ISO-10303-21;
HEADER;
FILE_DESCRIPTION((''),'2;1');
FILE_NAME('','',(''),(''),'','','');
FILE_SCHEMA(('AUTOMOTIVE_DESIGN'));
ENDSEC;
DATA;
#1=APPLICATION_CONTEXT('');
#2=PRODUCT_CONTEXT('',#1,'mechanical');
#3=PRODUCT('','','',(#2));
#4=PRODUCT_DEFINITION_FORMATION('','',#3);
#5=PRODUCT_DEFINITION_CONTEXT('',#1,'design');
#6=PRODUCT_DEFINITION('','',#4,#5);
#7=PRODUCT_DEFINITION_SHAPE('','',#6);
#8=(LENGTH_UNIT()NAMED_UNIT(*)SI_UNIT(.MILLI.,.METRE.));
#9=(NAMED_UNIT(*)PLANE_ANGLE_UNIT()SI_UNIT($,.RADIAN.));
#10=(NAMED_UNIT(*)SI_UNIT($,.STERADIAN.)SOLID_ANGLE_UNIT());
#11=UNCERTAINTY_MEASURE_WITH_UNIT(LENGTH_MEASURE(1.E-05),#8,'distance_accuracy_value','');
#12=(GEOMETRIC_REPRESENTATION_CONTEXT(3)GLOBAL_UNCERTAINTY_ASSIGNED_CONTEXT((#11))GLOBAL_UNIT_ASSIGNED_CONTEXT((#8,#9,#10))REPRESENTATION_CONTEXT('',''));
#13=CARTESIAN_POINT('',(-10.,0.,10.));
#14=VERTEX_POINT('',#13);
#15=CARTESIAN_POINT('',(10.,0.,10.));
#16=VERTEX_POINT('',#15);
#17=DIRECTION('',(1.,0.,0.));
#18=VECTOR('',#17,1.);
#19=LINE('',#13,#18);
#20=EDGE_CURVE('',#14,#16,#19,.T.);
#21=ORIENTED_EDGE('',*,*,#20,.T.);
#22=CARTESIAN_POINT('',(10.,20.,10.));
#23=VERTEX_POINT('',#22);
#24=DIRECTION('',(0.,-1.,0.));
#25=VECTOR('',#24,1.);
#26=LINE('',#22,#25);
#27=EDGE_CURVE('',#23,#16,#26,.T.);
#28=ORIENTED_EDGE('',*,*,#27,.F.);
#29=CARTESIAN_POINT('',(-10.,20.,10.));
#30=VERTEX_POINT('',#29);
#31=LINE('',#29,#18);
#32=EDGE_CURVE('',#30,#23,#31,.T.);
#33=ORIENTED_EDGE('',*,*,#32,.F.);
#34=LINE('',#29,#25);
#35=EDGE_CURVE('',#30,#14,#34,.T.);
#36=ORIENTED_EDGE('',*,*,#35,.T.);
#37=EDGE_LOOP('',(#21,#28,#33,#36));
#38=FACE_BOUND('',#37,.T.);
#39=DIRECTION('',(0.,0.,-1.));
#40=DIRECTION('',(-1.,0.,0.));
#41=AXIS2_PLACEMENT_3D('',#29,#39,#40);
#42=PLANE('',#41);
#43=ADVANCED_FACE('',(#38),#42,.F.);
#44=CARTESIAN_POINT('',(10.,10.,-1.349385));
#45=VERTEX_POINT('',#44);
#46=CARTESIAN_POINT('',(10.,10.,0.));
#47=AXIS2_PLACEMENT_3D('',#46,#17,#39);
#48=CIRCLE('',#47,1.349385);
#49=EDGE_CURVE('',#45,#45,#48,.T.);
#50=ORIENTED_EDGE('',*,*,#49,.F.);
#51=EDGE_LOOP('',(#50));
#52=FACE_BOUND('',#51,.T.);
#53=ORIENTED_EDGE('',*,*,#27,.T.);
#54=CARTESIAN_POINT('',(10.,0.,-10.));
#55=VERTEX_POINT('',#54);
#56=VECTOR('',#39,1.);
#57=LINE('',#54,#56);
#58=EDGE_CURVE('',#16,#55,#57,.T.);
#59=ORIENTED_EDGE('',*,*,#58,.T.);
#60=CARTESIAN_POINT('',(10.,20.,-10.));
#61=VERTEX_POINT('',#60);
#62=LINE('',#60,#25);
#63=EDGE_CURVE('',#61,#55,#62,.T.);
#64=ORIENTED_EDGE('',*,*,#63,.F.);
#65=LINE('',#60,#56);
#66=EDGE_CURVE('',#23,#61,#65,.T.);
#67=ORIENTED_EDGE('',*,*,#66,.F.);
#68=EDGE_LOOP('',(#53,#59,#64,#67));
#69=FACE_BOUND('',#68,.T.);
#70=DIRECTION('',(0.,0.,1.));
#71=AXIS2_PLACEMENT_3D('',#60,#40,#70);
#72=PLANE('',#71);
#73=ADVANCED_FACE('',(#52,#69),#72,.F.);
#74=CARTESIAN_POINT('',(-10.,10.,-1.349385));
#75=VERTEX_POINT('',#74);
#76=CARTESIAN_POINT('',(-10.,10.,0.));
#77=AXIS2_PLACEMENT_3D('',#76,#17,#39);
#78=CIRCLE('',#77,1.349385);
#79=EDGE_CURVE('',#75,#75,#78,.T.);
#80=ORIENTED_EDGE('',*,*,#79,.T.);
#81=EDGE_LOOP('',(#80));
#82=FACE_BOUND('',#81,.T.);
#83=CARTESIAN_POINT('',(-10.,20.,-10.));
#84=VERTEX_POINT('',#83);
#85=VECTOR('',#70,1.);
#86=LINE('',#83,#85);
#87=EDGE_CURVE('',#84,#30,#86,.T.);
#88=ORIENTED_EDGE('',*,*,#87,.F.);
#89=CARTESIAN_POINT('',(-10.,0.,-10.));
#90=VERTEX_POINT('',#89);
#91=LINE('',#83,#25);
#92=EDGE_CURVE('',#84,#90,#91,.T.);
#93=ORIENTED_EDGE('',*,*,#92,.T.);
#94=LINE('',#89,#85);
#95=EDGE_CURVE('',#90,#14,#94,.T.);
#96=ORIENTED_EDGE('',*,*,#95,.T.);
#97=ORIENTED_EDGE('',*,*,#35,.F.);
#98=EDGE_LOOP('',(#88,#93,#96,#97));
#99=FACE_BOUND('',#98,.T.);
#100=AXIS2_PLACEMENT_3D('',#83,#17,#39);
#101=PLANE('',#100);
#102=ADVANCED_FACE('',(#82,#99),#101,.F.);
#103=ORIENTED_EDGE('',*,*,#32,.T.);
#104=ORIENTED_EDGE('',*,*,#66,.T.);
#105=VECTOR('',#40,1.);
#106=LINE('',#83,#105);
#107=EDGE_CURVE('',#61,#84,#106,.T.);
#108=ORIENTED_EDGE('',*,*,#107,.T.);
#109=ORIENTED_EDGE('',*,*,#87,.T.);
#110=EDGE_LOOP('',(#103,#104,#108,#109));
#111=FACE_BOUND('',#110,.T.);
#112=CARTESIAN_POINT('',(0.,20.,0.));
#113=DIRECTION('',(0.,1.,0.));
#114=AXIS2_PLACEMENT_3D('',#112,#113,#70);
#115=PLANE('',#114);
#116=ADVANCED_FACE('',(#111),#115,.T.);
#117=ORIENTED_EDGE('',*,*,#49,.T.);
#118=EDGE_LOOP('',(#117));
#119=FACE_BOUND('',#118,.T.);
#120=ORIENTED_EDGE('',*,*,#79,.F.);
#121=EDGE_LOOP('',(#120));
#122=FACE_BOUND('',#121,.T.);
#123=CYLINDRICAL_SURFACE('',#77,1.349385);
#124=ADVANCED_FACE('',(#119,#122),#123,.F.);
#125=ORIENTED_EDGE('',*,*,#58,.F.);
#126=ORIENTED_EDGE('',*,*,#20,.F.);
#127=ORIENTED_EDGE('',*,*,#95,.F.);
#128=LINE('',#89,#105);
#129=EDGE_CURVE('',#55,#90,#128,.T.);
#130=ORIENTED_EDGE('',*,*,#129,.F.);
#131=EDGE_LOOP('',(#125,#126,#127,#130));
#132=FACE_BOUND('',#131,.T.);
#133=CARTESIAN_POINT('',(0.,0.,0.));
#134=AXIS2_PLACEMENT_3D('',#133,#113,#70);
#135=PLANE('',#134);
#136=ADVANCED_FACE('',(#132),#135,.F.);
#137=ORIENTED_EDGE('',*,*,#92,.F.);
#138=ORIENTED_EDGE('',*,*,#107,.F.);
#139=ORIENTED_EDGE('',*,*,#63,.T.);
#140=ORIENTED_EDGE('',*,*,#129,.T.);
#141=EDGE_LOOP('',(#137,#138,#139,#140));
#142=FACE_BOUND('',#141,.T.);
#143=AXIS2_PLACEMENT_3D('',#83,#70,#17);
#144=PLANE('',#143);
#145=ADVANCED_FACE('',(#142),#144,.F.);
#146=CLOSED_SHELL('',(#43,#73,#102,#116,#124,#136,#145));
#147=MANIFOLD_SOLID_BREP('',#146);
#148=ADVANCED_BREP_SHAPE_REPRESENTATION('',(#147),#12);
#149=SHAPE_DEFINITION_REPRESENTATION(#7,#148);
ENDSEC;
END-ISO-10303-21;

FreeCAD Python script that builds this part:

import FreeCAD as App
import Part
import Sketcher
from FreeCAD import Vector


def add_polygon(sketch, points):
    """Adds a closed chain of lines whose ends are joined by coincident constraints."""
    first, n = sketch.GeometryCount, len(points)
    for a, b in zip(points, points[1:] + points[:1]):
        sketch.addGeometry(Part.LineSegment(App.Vector(*a, 0), App.Vector(*b, 0)), False)
    for i in range(n):
        sketch.addConstraint(Sketcher.Constraint("Coincident", first + i, 2, first + (i + 1) % n, 1))

doc = App.newDocument("Part")
body = doc.addObject("PartDesign::Body", "Body")

# Sketch on XZ plane
sketch1 = body.newObject("Sketcher::SketchObject", "Sketch")
sketch1.AttachmentSupport = (doc.getObject("XZ_Plane"), [""])
sketch1.MapMode = "FlatFace"
add_polygon(sketch1, [(-10, -10), (-10, 10), (10, 10), (10, -10)])  # lines 0-3
sketch1.addConstraint([
    Sketcher.Constraint("Vertical", 0),
    Sketcher.Constraint("Horizontal", 1),
    Sketcher.Constraint("Vertical", 2),
    Sketcher.Constraint("Horizontal", 3),
    Sketcher.Constraint("Symmetric", 0, 2, 2, 2, -1, 1),
    Sketcher.Constraint("Equal", 3, 0),
    Sketcher.Constraint("DistanceX", 1, 1, 1, 2, 20.0),
])
pad1 = body.newObject("PartDesign::Pad", "Pad")
pad1.Profile = sketch1
pad1.Length = 20
pad1.Reversed = True

# Sketch on YZ plane
sketch2 = body.newObject("Sketcher::SketchObject", "Sketch001")
sketch2.AttachmentSupport = (doc.getObject("YZ_Plane"), [""])
sketch2.MapMode = "FlatFace"
sketch2.AttachmentOffset = App.Placement(Vector(0, 0, 10), App.Rotation())
sketch2.addGeometry(Part.Circle(Vector(10, 0, 0), Vector(0, 0, 1), 1.3), False)
sketch2.addConstraint([
    Sketcher.Constraint("PointOnObject", 0, 3, -1),
    Sketcher.Constraint("DistanceX", -1, 1, 0, 3, 10.0),
    Sketcher.Constraint("Diameter", 0, 2.698771),
])
pocket1 = body.newObject("PartDesign::Pocket", "Pocket")
pocket1.Profile = sketch2
pocket1.Length = 20

doc.recompute()
